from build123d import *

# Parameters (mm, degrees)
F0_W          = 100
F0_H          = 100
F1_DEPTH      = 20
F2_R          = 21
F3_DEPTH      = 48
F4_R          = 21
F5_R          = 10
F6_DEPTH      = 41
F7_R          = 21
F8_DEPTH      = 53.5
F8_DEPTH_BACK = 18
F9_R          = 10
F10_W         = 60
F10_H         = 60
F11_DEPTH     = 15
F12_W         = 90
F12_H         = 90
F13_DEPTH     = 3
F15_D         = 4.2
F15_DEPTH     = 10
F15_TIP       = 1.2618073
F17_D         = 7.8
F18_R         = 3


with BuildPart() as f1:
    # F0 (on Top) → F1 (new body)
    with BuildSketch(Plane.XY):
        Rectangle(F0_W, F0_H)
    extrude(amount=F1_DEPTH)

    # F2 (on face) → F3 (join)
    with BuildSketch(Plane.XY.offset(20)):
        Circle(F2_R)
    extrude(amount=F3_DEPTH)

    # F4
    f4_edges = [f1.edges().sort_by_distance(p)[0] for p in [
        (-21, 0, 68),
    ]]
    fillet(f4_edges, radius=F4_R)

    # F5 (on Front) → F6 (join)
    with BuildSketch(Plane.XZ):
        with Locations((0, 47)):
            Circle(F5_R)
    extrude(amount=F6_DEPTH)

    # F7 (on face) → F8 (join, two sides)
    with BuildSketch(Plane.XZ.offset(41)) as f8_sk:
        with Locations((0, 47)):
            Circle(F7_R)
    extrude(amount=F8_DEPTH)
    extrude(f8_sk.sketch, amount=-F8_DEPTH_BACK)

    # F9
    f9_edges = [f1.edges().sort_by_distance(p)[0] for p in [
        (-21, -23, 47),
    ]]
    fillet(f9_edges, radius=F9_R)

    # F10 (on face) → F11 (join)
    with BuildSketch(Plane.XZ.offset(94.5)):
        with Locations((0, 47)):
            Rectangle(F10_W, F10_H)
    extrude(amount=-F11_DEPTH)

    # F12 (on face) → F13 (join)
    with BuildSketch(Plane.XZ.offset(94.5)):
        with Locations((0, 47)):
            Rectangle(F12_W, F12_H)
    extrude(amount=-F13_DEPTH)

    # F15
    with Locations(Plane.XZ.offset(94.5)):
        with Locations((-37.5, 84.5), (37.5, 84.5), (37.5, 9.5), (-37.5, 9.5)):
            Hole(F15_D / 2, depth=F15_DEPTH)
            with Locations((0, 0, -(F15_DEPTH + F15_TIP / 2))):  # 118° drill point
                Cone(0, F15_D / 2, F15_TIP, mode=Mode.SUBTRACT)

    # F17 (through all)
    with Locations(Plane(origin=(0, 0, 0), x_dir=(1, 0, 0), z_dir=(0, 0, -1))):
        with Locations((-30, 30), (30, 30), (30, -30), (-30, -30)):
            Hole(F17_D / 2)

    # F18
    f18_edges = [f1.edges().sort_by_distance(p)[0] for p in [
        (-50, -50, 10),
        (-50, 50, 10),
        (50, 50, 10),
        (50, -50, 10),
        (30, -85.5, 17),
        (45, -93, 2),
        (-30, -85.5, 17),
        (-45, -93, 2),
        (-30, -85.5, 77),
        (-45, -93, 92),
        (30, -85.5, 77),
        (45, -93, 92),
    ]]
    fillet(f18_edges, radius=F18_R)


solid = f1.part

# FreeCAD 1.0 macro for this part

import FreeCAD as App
import Part
import Sketcher
from FreeCAD import Vector


def edges_at(feature, points):
    """Names of the edges that pass closest to the given points."""
    edges = feature.Shape.Edges
    near = lambda p: min(range(len(edges)), key=lambda i: edges[i].distToShape(Part.Vertex(*p))[0])
    return sorted({f"Edge{near(p) + 1}" for p in points})


def add_polygon(sketch, points):
    """Adds a closed chain of lines whose ends are joined by coincident constraints."""
    first, n = sketch.GeometryCount, len(points)
    for a, b in zip(points, points[1:] + points[:1]):
        sketch.addGeometry(Part.LineSegment(App.Vector(*a, 0), App.Vector(*b, 0)), False)
    for i in range(n):
        sketch.addConstraint(Sketcher.Constraint("Coincident", first + i, 2, first + (i + 1) % n, 1))

doc = App.newDocument("Part")
body = doc.addObject("PartDesign::Body", "Body")

# Sketch on XY plane
sketch1 = doc.addObject("Sketcher::SketchObject", "Sketch")
body.addObject(sketch1)
sketch1.AttachmentSupport = (doc.XY_Plane, [""])
sketch1.MapMode = "FlatFace"
add_polygon(sketch1, [(-50, 50), (-50, -50), (50, -50), (50, 50)])  # lines 0-3
sketch1.addConstraint([
    Sketcher.Constraint("Vertical", 0),
    Sketcher.Constraint("Horizontal", 1),
    Sketcher.Constraint("Vertical", 2),
    Sketcher.Constraint("Horizontal", 3),
    Sketcher.Constraint("Symmetric", 0, 2, 2, 2, -1, 1),
    Sketcher.Constraint("Equal", 3, 0),
    Sketcher.Constraint("DistanceX", 1, 1, 1, 2, 100.0),
])
pad1 = doc.addObject("PartDesign::Pad", "Pad")
body.addObject(pad1)
pad1.Profile = sketch1
pad1.Length = 20

# Sketch on XY plane
sketch2 = doc.addObject("Sketcher::SketchObject", "Sketch001")
body.addObject(sketch2)
sketch2.AttachmentSupport = (doc.XY_Plane, [""])
sketch2.MapMode = "FlatFace"
sketch2.AttachmentOffset = App.Placement(Vector(0, 0, 20), App.Rotation())
sketch2.addGeometry(Part.Circle(Vector(0, 0, 0), Vector(0, 0, 1), 21), False)
sketch2.addConstraint([
    Sketcher.Constraint("Coincident", 0, 3, -1, 1),
    Sketcher.Constraint("Diameter", 0, 42.0),
])
pad2 = doc.addObject("PartDesign::Pad", "Pad001")
body.addObject(pad2)
pad2.Profile = sketch2
pad2.Length = 48
doc.recompute()

fillet = doc.addObject("PartDesign::Fillet", "Fillet")
body.addObject(fillet)
fillet.Base = (pad2, edges_at(pad2, [(-21, 0, 68)]))
fillet.Radius = 21

# Sketch on XZ plane
sketch3 = doc.addObject("Sketcher::SketchObject", "Sketch002")
body.addObject(sketch3)
sketch3.AttachmentSupport = (doc.XZ_Plane, [""])
sketch3.MapMode = "FlatFace"
sketch3.addGeometry(Part.Circle(Vector(0, 47, 0), Vector(0, 0, 1), 10), False)
sketch3.addConstraint([
    Sketcher.Constraint("PointOnObject", 0, 3, -2),
    Sketcher.Constraint("Diameter", 0, 20.0),
    Sketcher.Constraint("DistanceY", -1, 1, 0, 3, 47.0),
])
pad3 = doc.addObject("PartDesign::Pad", "Pad002")
body.addObject(pad3)
pad3.Profile = sketch3
pad3.Length = 41

# Sketch on XZ plane
sketch4 = doc.addObject("Sketcher::SketchObject", "Sketch003")
body.addObject(sketch4)
sketch4.AttachmentSupport = (doc.XZ_Plane, [""])
sketch4.MapMode = "FlatFace"
sketch4.AttachmentOffset = App.Placement(Vector(0, 0, 41), App.Rotation())
sketch4.addGeometry(Part.Circle(Vector(0, 47, 0), Vector(0, 0, 1), 21), False)
sketch4.addConstraint([
    Sketcher.Constraint("PointOnObject", 0, 3, -2),
    Sketcher.Constraint("Diameter", 0, 42.0),
    Sketcher.Constraint("DistanceY", -1, 1, 0, 3, 47.0),
])
pad4 = doc.addObject("PartDesign::Pad", "Pad003")
body.addObject(pad4)
pad4.Profile = sketch4
pad4.Type = "TwoLengths"
pad4.Length = 53.5
pad4.Length2 = 18
doc.recompute()

fillet2 = doc.addObject("PartDesign::Fillet", "Fillet001")
body.addObject(fillet2)
fillet2.Base = (pad4, edges_at(pad4, [(-21, -23, 47)]))
fillet2.Radius = 10

# Sketch on XZ plane
sketch5 = doc.addObject("Sketcher::SketchObject", "Sketch004")
body.addObject(sketch5)
sketch5.AttachmentSupport = (doc.XZ_Plane, [""])
sketch5.MapMode = "FlatFace"
sketch5.AttachmentOffset = App.Placement(Vector(0, 0, 94.5), App.Rotation())
add_polygon(sketch5, [(-30, 77), (-30, 17), (30, 17), (30, 77)])  # lines 0-3
sketch5.addConstraint([
    Sketcher.Constraint("Vertical", 0),
    Sketcher.Constraint("Horizontal", 1),
    Sketcher.Constraint("Vertical", 2),
    Sketcher.Constraint("Horizontal", 3),
    Sketcher.Constraint("Equal", 3, 0),
    Sketcher.Constraint("DistanceX", 1, 1, 1, 2, 60.0),
    Sketcher.Constraint("DistanceX", 0, 2, -1, 1, 30.0),
    Sketcher.Constraint("DistanceY", -1, 1, 0, 2, 17.0),
])
pad5 = doc.addObject("PartDesign::Pad", "Pad004")
body.addObject(pad5)
pad5.Profile = sketch5
pad5.Length = 15
pad5.Reversed = True

# Sketch on XZ plane
sketch6 = doc.addObject("Sketcher::SketchObject", "Sketch005")
body.addObject(sketch6)
sketch6.AttachmentSupport = (doc.XZ_Plane, [""])
sketch6.MapMode = "FlatFace"
sketch6.AttachmentOffset = App.Placement(Vector(0, 0, 94.5), App.Rotation())
add_polygon(sketch6, [(-45, 92), (-45, 2), (45, 2), (45, 92)])  # lines 0-3
sketch6.addConstraint([
    Sketcher.Constraint("Vertical", 0),
    Sketcher.Constraint("Horizontal", 1),
    Sketcher.Constraint("Vertical", 2),
    Sketcher.Constraint("Horizontal", 3),
    Sketcher.Constraint("Equal", 3, 0),
    Sketcher.Constraint("DistanceX", 1, 1, 1, 2, 90.0),
    Sketcher.Constraint("DistanceX", 0, 2, -1, 1, 45.0),
    Sketcher.Constraint("DistanceY", -1, 1, 0, 2, 2.0),
])
pad6 = doc.addObject("PartDesign::Pad", "Pad005")
body.addObject(pad6)
pad6.Profile = sketch6
pad6.Length = 3
pad6.Reversed = True

# Sketch on XZ plane
sketch7 = doc.addObject("Sketcher::SketchObject", "Sketch006")
body.addObject(sketch7)
sketch7.AttachmentSupport = (doc.XZ_Plane, [""])
sketch7.MapMode = "FlatFace"
sketch7.AttachmentOffset = App.Placement(Vector(0, 0, 94.5), App.Rotation())
sketch7.addGeometry([
    Part.Circle(Vector(-37.5, 84.5, 0), Vector(0, 0, 1), 2.1),
    Part.Circle(Vector(37.5, 84.5, 0), Vector(0, 0, 1), 2.1),
    Part.Circle(Vector(37.5, 9.5, 0), Vector(0, 0, 1), 2.1),
    Part.Circle(Vector(-37.5, 9.5, 0), Vector(0, 0, 1), 2.1),
], False)
sketch7.addConstraint([
    Sketcher.Constraint("Equal", 0, 1),
    Sketcher.Constraint("Equal", 1, 2),
    Sketcher.Constraint("Equal", 2, 3),
    Sketcher.Constraint("Symmetric", 0, 3, 1, 3, -2),
    Sketcher.Constraint("Symmetric", 2, 3, 3, 3, -2),
    Sketcher.Constraint("Vertical", 1, 3, 2, 3),
    Sketcher.Constraint("Diameter", 0, 4.2),
    Sketcher.Constraint("DistanceX", 0, 3, 1, 3, 75.0),
    Sketcher.Constraint("DistanceY", 2, 3, 1, 3, 75.0),
    Sketcher.Constraint("DistanceY", -1, 1, 0, 3, 84.5),
])
doc.recompute()
hole = doc.addObject("PartDesign::Hole", "Hole")
body.addObject(hole)
hole.Profile = sketch7
hole.ThreadType = "None"
hole.Diameter = 4.2
hole.DepthType = "Dimension"
hole.Depth = 10
hole.DrillPoint = "Angled"
hole.DrillPointAngle = 118

# Sketch on XY plane
sketch8 = doc.addObject("Sketcher::SketchObject", "Sketch007")
body.addObject(sketch8)
sketch8.AttachmentSupport = (doc.XY_Plane, [""])
sketch8.MapMode = "FlatFace"
sketch8.addGeometry([
    Part.Circle(Vector(-30, -30, 0), Vector(0, 0, 1), 3.9),
    Part.Circle(Vector(30, -30, 0), Vector(0, 0, 1), 3.9),
    Part.Circle(Vector(30, 30, 0), Vector(0, 0, 1), 3.9),
    Part.Circle(Vector(-30, 30, 0), Vector(0, 0, 1), 3.9),
], False)
sketch8.addConstraint([
    Sketcher.Constraint("Equal", 0, 1),
    Sketcher.Constraint("Equal", 1, 2),
    Sketcher.Constraint("Equal", 2, 3),
    Sketcher.Constraint("Symmetric", 0, 3, 2, 3, -1, 1),
    Sketcher.Constraint("Symmetric", 1, 3, 3, 3, -1, 1),
    Sketcher.Constraint("Symmetric", 0, 3, 1, 3, -2),
    Sketcher.Constraint("Diameter", 0, 7.8),
    Sketcher.Constraint("DistanceX", 0, 3, -1, 1, 30.0),
    Sketcher.Constraint("DistanceY", 0, 3, -1, 1, 30.0),
])
doc.recompute()
hole2 = doc.addObject("PartDesign::Hole", "Hole001")
body.addObject(hole2)
hole2.Profile = sketch8
hole2.ThreadType = "None"
hole2.Diameter = 7.8
hole2.DepthType = "ThroughAll"
hole2.Reversed = True
doc.recompute()

fillet3 = doc.addObject("PartDesign::Fillet", "Fillet002")
body.addObject(fillet3)
fillet3.Base = (hole2, edges_at(hole2, [
    (-50, -50, 10),
    (-50, 50, 10),
    (50, 50, 10),
    (50, -50, 10),
    (30, -85.5, 17),
    (45, -93, 2),
    (-30, -85.5, 17),
    (-45, -93, 2),
    (-30, -85.5, 77),
    (-45, -93, 92),
    (30, -85.5, 77),
    (45, -93, 92),
]))
fillet3.Radius = 3

doc.recompute()
